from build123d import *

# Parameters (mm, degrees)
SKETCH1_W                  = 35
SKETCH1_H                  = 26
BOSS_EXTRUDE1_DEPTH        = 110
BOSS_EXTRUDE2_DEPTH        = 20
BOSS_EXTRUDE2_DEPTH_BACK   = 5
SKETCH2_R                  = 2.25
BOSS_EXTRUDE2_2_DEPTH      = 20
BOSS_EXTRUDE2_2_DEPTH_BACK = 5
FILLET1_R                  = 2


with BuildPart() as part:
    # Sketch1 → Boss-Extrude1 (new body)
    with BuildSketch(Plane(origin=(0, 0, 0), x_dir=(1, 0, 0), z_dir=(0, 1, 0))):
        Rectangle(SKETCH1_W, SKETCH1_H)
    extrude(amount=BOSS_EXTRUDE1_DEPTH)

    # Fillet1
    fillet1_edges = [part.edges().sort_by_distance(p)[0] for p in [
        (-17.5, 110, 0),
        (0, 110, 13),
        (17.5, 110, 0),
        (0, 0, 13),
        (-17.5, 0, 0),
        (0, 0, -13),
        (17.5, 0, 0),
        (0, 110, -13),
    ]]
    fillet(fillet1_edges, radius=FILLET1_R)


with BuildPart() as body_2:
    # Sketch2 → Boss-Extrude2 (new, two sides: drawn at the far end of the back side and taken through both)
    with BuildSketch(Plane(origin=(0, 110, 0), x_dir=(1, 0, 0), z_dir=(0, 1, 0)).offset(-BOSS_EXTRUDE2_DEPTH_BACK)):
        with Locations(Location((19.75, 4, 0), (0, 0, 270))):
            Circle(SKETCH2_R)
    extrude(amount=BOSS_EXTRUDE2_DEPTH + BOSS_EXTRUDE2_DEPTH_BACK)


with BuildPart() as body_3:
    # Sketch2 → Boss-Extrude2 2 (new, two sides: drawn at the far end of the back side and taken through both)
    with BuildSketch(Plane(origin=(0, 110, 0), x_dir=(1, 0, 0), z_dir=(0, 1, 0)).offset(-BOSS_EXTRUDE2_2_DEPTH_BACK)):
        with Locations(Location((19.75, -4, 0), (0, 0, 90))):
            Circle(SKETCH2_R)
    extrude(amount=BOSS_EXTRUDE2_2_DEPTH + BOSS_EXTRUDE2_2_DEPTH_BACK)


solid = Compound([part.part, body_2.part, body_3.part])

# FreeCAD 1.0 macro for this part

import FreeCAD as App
import Part
import Sketcher
Q = App.Units.Quantity


def edges_at(feature, points):
    """Names of the edges that pass closest to the given points."""
    edges = feature.Shape.Edges
    near = lambda p: min(range(len(edges)), key=lambda i: edges[i].distToShape(Part.Vertex(*p))[0])
    return sorted({f"Edge{near(p) + 1}" for p in points})


def add_polygon(sketch, points):
    """Adds a closed chain of lines whose ends are joined by coincident constraints."""
    first, n = sketch.GeometryCount, len(points)
    for a, b in zip(points, points[1:] + points[:1]):
        sketch.addGeometry(Part.LineSegment(App.Vector(*a, 0), App.Vector(*b, 0)), False)
    for i in range(n):
        sketch.addConstraint(Sketcher.Constraint("Coincident", first + i, 2, first + (i + 1) % n, 1))

doc = App.newDocument("Part")
params = doc.addObject("Spreadsheet::Sheet", "Params")
for row, (alias, value) in enumerate([
    ("sketch1_width", "35 mm"),
    ("sketch1_height", "26 mm"),
    ("pad1_length", "110 mm"),
    ("fillet_radius", "2 mm"),
    ("sketch2_diameter", "4.5 mm"),
    ("pad2_length", "20 mm"),
    ("pad2_length2", "5 mm"),
    ("sketch3_diameter", "4.5 mm"),
    ("pad3_length", "20 mm"),
    ("pad3_length2", "5 mm"),
], start=1):
    params.set(f"A{row}", alias)
    params.set(f"B{row}", "=" + value)
    params.setAlias(f"B{row}", alias)

body = doc.addObject("PartDesign::Body", "Body")

# Sketch on XZ plane
sketch1 = doc.addObject("Sketcher::SketchObject", "Sketch")
body.addObject(sketch1)
sketch1.AttachmentSupport = (doc.XZ_Plane, [""])
sketch1.MapMode = "FlatFace"
add_polygon(sketch1, [(-18, -13), (-18, 13), (18, 13), (18, -13)])  # lines 0-3
sketch1.addConstraint([
    Sketcher.Constraint("Vertical", 0),
    Sketcher.Constraint("Horizontal", 1),
    Sketcher.Constraint("Vertical", 2),
    Sketcher.Constraint("Horizontal", 3),
    Sketcher.Constraint("Symmetric", 0, 2, 2, 2, -1, 1),
    Sketcher.Constraint("DistanceX", 1, 1, 1, 2, Q("35 mm")),
    Sketcher.Constraint("DistanceY", 0, 1, 0, 2, Q("26 mm")),
])
sketch1.setExpression("Constraints[9]", "Params.sketch1_width")
sketch1.setExpression("Constraints[10]", "Params.sketch1_height")
pad1 = doc.addObject("PartDesign::Pad", "Pad")
body.addObject(pad1)
pad1.Profile = sketch1
pad1.setExpression("Length", "Params.pad1_length")
pad1.Reversed = True
doc.recompute()

fillet = doc.addObject("PartDesign::Fillet", "Fillet")
body.addObject(fillet)
fillet.Base = (pad1, edges_at(pad1, [
    (-17.5, 110, 0),
    (0, 110, 13),
    (17.5, 110, 0),
    (0, 0, 13),
    (-17.5, 0, 0),
    (0, 0, -13),
    (17.5, 0, 0),
    (0, 110, -13),
]))
fillet.setExpression("Radius", "Params.fillet_radius")
body2 = doc.addObject("PartDesign::Body", "Body001")

# Sketch on XZ plane
sketch2 = doc.addObject("Sketcher::SketchObject", "Sketch001")
body2.addObject(sketch2)
sketch2.AttachmentSupport = (doc.getObject("XZ_Plane001"), [""])
sketch2.MapMode = "FlatFace"
sketch2.AttachmentOffset = App.Placement(App.Vector(0, 0, -110), App.Rotation())
sketch2.addGeometry(Part.Circle(App.Vector(19.8, -4, 0), App.Vector(0, 0, 1), 2.2), False)
sketch2.addConstraint([
    Sketcher.Constraint("Diameter", 0, Q("4.5 mm")),
    Sketcher.Constraint("DistanceY", 0, 3, -1, 1, Q("4 mm")),
    Sketcher.Constraint("DistanceX", -1, 1, 0, 3, Q("19.75 mm")),
])
sketch2.setExpression("Constraints[0]", "Params.sketch2_diameter")
pad2 = doc.addObject("PartDesign::Pad", "Pad001")
body2.addObject(pad2)
pad2.Profile = sketch2
pad2.Type = "TwoLengths"
pad2.setExpression("Length", "Params.pad2_length")
pad2.setExpression("Length2", "Params.pad2_length2")
pad2.Reversed = True
body3 = doc.addObject("PartDesign::Body", "Body002")

# Sketch on XZ plane
sketch3 = doc.addObject("Sketcher::SketchObject", "Sketch002")
body3.addObject(sketch3)
sketch3.AttachmentSupport = (doc.getObject("XZ_Plane002"), [""])
sketch3.MapMode = "FlatFace"
sketch3.AttachmentOffset = App.Placement(App.Vector(0, 0, -110), App.Rotation())
sketch3.addGeometry(Part.Circle(App.Vector(19.8, 4, 0), App.Vector(0, 0, 1), 2.2), False)
sketch3.addConstraint([
    Sketcher.Constraint("Diameter", 0, Q("4.5 mm")),
    Sketcher.Constraint("DistanceY", -1, 1, 0, 3, Q("4 mm")),
    Sketcher.Constraint("DistanceX", -1, 1, 0, 3, Q("19.75 mm")),
])
sketch3.setExpression("Constraints[0]", "Params.sketch3_diameter")
pad3 = doc.addObject("PartDesign::Pad", "Pad002")
body3.addObject(pad3)
pad3.Profile = sketch3
pad3.Type = "TwoLengths"
pad3.setExpression("Length", "Params.pad3_length")
pad3.setExpression("Length2", "Params.pad3_length2")
pad3.Reversed = True

doc.recompute()
